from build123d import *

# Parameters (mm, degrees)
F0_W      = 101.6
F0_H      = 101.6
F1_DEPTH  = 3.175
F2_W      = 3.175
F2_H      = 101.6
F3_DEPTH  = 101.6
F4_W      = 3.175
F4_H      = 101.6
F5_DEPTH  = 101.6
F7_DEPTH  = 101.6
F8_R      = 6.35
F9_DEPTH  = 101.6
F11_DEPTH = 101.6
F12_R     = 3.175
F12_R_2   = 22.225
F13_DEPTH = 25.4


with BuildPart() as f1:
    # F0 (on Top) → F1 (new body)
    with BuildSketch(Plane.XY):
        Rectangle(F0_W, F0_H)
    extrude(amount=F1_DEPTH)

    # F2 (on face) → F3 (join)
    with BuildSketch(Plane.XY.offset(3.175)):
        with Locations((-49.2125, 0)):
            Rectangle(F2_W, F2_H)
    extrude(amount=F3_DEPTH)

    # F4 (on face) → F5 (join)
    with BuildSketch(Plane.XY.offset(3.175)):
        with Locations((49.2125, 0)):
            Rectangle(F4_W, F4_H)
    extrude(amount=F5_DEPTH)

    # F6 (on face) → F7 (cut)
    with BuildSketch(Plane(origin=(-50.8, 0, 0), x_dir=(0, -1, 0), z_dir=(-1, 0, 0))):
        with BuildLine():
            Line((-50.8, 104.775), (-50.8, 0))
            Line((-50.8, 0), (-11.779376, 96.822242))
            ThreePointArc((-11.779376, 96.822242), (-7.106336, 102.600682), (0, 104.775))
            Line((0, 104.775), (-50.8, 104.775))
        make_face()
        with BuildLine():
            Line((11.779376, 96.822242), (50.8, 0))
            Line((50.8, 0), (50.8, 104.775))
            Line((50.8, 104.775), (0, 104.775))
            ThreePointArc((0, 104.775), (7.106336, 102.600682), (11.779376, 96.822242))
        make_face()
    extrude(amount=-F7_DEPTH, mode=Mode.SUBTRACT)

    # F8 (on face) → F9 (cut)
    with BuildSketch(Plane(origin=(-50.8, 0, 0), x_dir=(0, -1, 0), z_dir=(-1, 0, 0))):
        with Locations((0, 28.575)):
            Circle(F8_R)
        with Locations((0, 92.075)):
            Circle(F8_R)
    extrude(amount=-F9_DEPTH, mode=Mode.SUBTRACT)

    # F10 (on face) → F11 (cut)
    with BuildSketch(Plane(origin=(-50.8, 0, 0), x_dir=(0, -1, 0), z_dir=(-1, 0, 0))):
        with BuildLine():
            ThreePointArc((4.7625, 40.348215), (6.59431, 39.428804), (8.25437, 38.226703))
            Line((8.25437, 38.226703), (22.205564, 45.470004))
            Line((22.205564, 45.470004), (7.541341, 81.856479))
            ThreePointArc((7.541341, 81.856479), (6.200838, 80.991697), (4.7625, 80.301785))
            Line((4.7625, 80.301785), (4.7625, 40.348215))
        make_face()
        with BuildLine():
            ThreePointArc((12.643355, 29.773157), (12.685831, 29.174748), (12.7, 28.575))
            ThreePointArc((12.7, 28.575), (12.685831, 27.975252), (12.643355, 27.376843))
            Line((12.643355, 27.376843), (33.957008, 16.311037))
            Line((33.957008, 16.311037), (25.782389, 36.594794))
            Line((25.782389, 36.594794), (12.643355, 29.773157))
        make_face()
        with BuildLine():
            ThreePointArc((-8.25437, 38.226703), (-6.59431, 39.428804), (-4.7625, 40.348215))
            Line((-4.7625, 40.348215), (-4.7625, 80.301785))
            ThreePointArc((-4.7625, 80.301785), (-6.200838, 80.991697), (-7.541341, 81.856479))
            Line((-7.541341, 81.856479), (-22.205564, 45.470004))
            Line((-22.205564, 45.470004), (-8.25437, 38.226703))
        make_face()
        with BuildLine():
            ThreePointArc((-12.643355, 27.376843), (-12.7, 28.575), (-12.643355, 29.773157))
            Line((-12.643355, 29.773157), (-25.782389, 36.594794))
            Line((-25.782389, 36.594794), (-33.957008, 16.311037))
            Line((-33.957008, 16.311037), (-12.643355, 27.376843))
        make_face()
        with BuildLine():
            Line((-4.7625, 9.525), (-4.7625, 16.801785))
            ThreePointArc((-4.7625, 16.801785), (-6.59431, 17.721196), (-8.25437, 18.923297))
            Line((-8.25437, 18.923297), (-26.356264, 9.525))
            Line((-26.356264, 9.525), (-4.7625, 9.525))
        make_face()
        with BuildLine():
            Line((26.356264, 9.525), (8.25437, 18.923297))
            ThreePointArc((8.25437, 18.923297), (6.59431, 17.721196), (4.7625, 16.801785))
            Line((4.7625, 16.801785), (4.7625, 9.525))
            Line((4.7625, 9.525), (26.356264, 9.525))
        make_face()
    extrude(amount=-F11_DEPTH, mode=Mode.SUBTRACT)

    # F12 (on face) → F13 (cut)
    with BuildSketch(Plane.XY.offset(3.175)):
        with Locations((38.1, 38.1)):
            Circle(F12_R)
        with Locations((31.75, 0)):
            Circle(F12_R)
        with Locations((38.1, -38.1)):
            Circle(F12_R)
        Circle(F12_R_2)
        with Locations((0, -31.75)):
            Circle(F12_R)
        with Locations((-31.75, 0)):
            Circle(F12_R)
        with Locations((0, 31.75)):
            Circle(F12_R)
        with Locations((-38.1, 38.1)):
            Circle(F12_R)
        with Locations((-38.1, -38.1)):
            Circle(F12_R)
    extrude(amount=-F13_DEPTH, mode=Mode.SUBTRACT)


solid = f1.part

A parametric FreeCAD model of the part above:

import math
import FreeCAD as App
import Part
import Sketcher

V = App.Vector
Q = App.Units.Quantity

doc = App.newDocument("Part")
body = doc.addObject("PartDesign::Body", "Body")

# Sketch on XY plane
sketch1 = body.newObject("Sketcher::SketchObject", "Sketch")
sketch1.AttachmentSupport = (doc.getObject("XY_Plane"), [""])
sketch1.MapMode = "FlatFace"
sketch1.addGeometry(Part.LineSegment(V(-50.8, 50.8, 0), V(-50.8, -50.8, 0)), False)
sketch1.addGeometry(Part.LineSegment(V(-50.8, -50.8, 0), V(50.8, -50.8, 0)), False)
sketch1.addGeometry(Part.LineSegment(V(50.8, -50.8, 0), V(50.8, 50.8, 0)), False)
sketch1.addGeometry(Part.LineSegment(V(50.8, 50.8, 0), V(-50.8, 50.8, 0)), False)
sketch1.addConstraint(Sketcher.Constraint("Coincident", 0, 2, 1, 1))
sketch1.addConstraint(Sketcher.Constraint("Coincident", 1, 2, 2, 1))
sketch1.addConstraint(Sketcher.Constraint("Coincident", 2, 2, 3, 1))
sketch1.addConstraint(Sketcher.Constraint("Coincident", 3, 2, 0, 1))
sketch1.addConstraint(Sketcher.Constraint("Vertical", 0))
sketch1.addConstraint(Sketcher.Constraint("Horizontal", 1))
sketch1.addConstraint(Sketcher.Constraint("Vertical", 2))
sketch1.addConstraint(Sketcher.Constraint("Horizontal", 3))
sketch1.addConstraint(Sketcher.Constraint("Symmetric", 0, 2, 2, 2, -1, 1))
sketch1.addConstraint(Sketcher.Constraint("Equal", 3, 0))
sketch1.addConstraint(Sketcher.Constraint("DistanceX", 1, 1, 1, 2, Q("4 in")))
pad1 = body.newObject("PartDesign::Pad", "Pad")
pad1.Profile = sketch1
pad1.Length = Q("0.125 in")

# Sketch on XY plane
sketch2 = body.newObject("Sketcher::SketchObject", "Sketch001")
sketch2.AttachmentSupport = (doc.getObject("XY_Plane"), [""])
sketch2.MapMode = "FlatFace"
sketch2.AttachmentOffset = App.Placement(V(0, 0, 0.125 * 25.4), App.Rotation())
sketch2.addGeometry(Part.LineSegment(V(-50.8, 50.8, 0), V(-50.8, -50.8, 0)), False)
sketch2.addGeometry(Part.LineSegment(V(-50.8, -50.8, 0), V(-47.625, -50.8, 0)), False)
sketch2.addGeometry(Part.LineSegment(V(-47.625, -50.8, 0), V(-47.625, 50.8, 0)), False)
sketch2.addGeometry(Part.LineSegment(V(-47.625, 50.8, 0), V(-50.8, 50.8, 0)), False)
sketch2.addConstraint(Sketcher.Constraint("Coincident", 0, 2, 1, 1))
sketch2.addConstraint(Sketcher.Constraint("Coincident", 1, 2, 2, 1))
sketch2.addConstraint(Sketcher.Constraint("Coincident", 2, 2, 3, 1))
sketch2.addConstraint(Sketcher.Constraint("Coincident", 3, 2, 0, 1))
sketch2.addConstraint(Sketcher.Constraint("Vertical", 0))
sketch2.addConstraint(Sketcher.Constraint("Horizontal", 1))
sketch2.addConstraint(Sketcher.Constraint("Vertical", 2))
sketch2.addConstraint(Sketcher.Constraint("Horizontal", 3))
sketch2.addConstraint(Sketcher.Constraint("DistanceY", 0, 2, 0, 1, Q("4 in")))
sketch2.addConstraint(Sketcher.Constraint("DistanceX", 0, 2, -1, 1, Q("2 in")))
sketch2.addConstraint(Sketcher.Constraint("DistanceY", 0, 2, -1, 1, Q("2 in")))
sketch2.addConstraint(Sketcher.Constraint("DistanceX", 1, 1, 1, 2, Q("0.125 in")))
pad2 = body.newObject("PartDesign::Pad", "Pad001")
pad2.Profile = sketch2
pad2.Length = Q("4 in")

# Sketch on XY plane
sketch3 = body.newObject("Sketcher::SketchObject", "Sketch002")
sketch3.AttachmentSupport = (doc.getObject("XY_Plane"), [""])
sketch3.MapMode = "FlatFace"
sketch3.AttachmentOffset = App.Placement(V(0, 0, 0.125 * 25.4), App.Rotation())
sketch3.addGeometry(Part.LineSegment(V(47.625, 50.8, 0), V(47.625, -50.8, 0)), False)
sketch3.addGeometry(Part.LineSegment(V(47.625, -50.8, 0), V(50.8, -50.8, 0)), False)
sketch3.addGeometry(Part.LineSegment(V(50.8, -50.8, 0), V(50.8, 50.8, 0)), False)
sketch3.addGeometry(Part.LineSegment(V(50.8, 50.8, 0), V(47.625, 50.8, 0)), False)
sketch3.addConstraint(Sketcher.Constraint("Coincident", 0, 2, 1, 1))
sketch3.addConstraint(Sketcher.Constraint("Coincident", 1, 2, 2, 1))
sketch3.addConstraint(Sketcher.Constraint("Coincident", 2, 2, 3, 1))
sketch3.addConstraint(Sketcher.Constraint("Coincident", 3, 2, 0, 1))
sketch3.addConstraint(Sketcher.Constraint("Vertical", 0))
sketch3.addConstraint(Sketcher.Constraint("Horizontal", 1))
sketch3.addConstraint(Sketcher.Constraint("Vertical", 2))
sketch3.addConstraint(Sketcher.Constraint("Horizontal", 3))
sketch3.addConstraint(Sketcher.Constraint("DistanceY", 0, 2, 0, 1, Q("4 in")))
sketch3.addConstraint(Sketcher.Constraint("DistanceY", 0, 2, -1, 1, Q("2 in")))
sketch3.addConstraint(Sketcher.Constraint("DistanceX", -1, 1, 1, 2, Q("2 in")))
sketch3.addConstraint(Sketcher.Constraint("DistanceX", 1, 1, 1, 2, Q("0.125 in")))
pad3 = body.newObject("PartDesign::Pad", "Pad002")
pad3.Profile = sketch3
pad3.Length = Q("4 in")

# Sketch on YZ plane
sketch4 = body.newObject("Sketcher::SketchObject", "Sketch003")
sketch4.AttachmentSupport = (doc.getObject("YZ_Plane"), [""])
sketch4.MapMode = "FlatFace"
sketch4.AttachmentOffset = App.Placement(V(0, 0, -2 * 25.4), App.Rotation())
sketch4.addGeometry(Part.LineSegment(V(50.8, 104.775, 0), V(50.8, 0, 0)), False)
sketch4.addGeometry(Part.LineSegment(V(50.8, 0, 0), V(11.779376, 96.822242, 0)), False)
sketch4.addGeometry(Part.ArcOfCircle(Part.Circle(V(-0.000001, 92.074998, 0), V(0, 0, 1), 12.700002), math.radians(21.950083), math.radians(89.999995)), False)
sketch4.addGeometry(Part.LineSegment(V(0, 104.775, 0), V(50.8, 104.775, 0)), False)
sketch4.addGeometry(Part.LineSegment(V(-11.779376, 96.822242, 0), V(-50.8, 0, 0)), False)
sketch4.addGeometry(Part.LineSegment(V(-50.8, 0, 0), V(-50.8, 104.775, 0)), False)
sketch4.addGeometry(Part.LineSegment(V(-50.8, 104.775, 0), V(0, 104.775, 0)), False)
sketch4.addGeometry(Part.ArcOfCircle(Part.Circle(V(0.000001, 92.074998, 0), V(0, 0, 1), 12.700002), math.radians(90.000005), math.radians(158.049917)), False)
sketch4.addConstraint(Sketcher.Constraint("Coincident", 0, 2, 1, 1))
sketch4.addConstraint(Sketcher.Constraint("Tangent", 1, 2, 2, 1))
sketch4.addConstraint(Sketcher.Constraint("Tangent", 2, 2, 3, 1))
sketch4.addConstraint(Sketcher.Constraint("Coincident", 3, 2, 0, 1))
sketch4.addConstraint(Sketcher.Constraint("Coincident", 4, 2, 5, 1))
sketch4.addConstraint(Sketcher.Constraint("Coincident", 5, 2, 6, 1))
sketch4.addConstraint(Sketcher.Constraint("Tangent", 6, 2, 7, 1))
sketch4.addConstraint(Sketcher.Constraint("Tangent", 7, 2, 4, 1))
sketch4.addConstraint(Sketcher.Constraint("Vertical", 0))
sketch4.addConstraint(Sketcher.Constraint("Horizontal", 3))
sketch4.addConstraint(Sketcher.Constraint("Vertical", 5))
sketch4.addConstraint(Sketcher.Constraint("Horizontal", 6))
sketch4.addConstraint(Sketcher.Constraint("Coincident", 7, 3, 2, 3))
sketch4.addConstraint(Sketcher.Constraint("Equal", 2, 7))
sketch4.addConstraint(Sketcher.Constraint("Symmetric", 0, 2, 4, 2, -1, 1))
sketch4.addConstraint(Sketcher.Constraint("Symmetric", 1, 2, 7, 2, -2))
sketch4.addConstraint(Sketcher.Constraint("Radius", 2, Q("0.5000001 in")))
sketch4.addConstraint(Sketcher.Constraint("DistanceX", 3, 1, 3, 2, Q("2 in")))
sketch4.addConstraint(Sketcher.Constraint("DistanceY", 0, 2, 0, 1, Q("4.125 in")))
pocket1 = body.newObject("PartDesign::Pocket", "Pocket")
pocket1.Profile = sketch4
pocket1.Length = Q("4 in")
pocket1.Reversed = True

# Sketch on YZ plane
sketch5 = body.newObject("Sketcher::SketchObject", "Sketch004")
sketch5.AttachmentSupport = (doc.getObject("YZ_Plane"), [""])
sketch5.MapMode = "FlatFace"
sketch5.AttachmentOffset = App.Placement(V(0, 0, -2 * 25.4), App.Rotation())
sketch5.addGeometry(Part.Circle(V(0, 28.575, 0), V(0, 0, 1), 6.35), False)
sketch5.addGeometry(Part.Circle(V(0, 92.075, 0), V(0, 0, 1), 6.35), False)
sketch5.addConstraint(Sketcher.Constraint("Equal", 0, 1))
sketch5.addConstraint(Sketcher.Constraint("PointOnObject", 0, 3, -2))
sketch5.addConstraint(Sketcher.Constraint("PointOnObject", 1, 3, -2))
sketch5.addConstraint(Sketcher.Constraint("Diameter", 0, Q("0.5 in")))
sketch5.addConstraint(Sketcher.Constraint("DistanceY", 0, 3, 1, 3, Q("2.5 in")))
sketch5.addConstraint(Sketcher.Constraint("DistanceY", -1, 1, 0, 3, Q("1.125 in")))
pocket2 = body.newObject("PartDesign::Pocket", "Pocket001")
pocket2.Profile = sketch5
pocket2.Length = Q("4 in")
pocket2.Reversed = True

# Sketch on YZ plane
sketch6 = body.newObject("Sketcher::SketchObject", "Sketch005")
sketch6.AttachmentSupport = (doc.getObject("YZ_Plane"), [""])
sketch6.MapMode = "FlatFace"
sketch6.AttachmentOffset = App.Placement(V(0, 0, -2 * 25.4), App.Rotation())
sketch6.addGeometry(Part.ArcOfCircle(Part.Circle(V(0.000017, 28.574973, 0), V(0, 0, 1), 12.700032), math.radians(112.024338), math.radians(130.537841)), False)
sketch6.addGeometry(Part.LineSegment(V(-8.25437, 38.226703, 0), V(-22.205564, 45.470004, 0)), False)
sketch6.addGeometry(Part.LineSegment(V(-22.205564, 45.470004, 0), V(-7.541341, 81.856479, 0)), False)
sketch6.addGeometry(Part.ArcOfCircle(Part.Circle(V(-0.000001, 92.074997, 0), V(0, 0, 1), 12.699996), math.radians(-126.427592), math.radians(-112.024313)), False)
sketch6.addGeometry(Part.LineSegment(V(-4.7625, 80.301785, 0), V(-4.7625, 40.348215, 0)), False)
sketch6.addGeometry(Part.ArcOfCircle(Part.Circle(V(-0.000102, 28.575007, 0), V(0, 0, 1), 12.699898), math.radians(174.586479), math.radians(180.000033)), False)
sketch6.addGeometry(Part.ArcOfCircle(Part.Circle(V(-0.000102, 28.574993, 0), V(0, 0, 1), 12.699898), math.radians(179.999967), math.radians(185.413521)), False)
sketch6.addGeometry(Part.LineSegment(V(-12.643355, 27.376843, 0), V(-33.957008, 16.311037, 0)), False)
sketch6.addGeometry(Part.LineSegment(V(-33.957008, 16.311037, 0), V(-25.782389, 36.594794, 0)), False)
sketch6.addGeometry(Part.LineSegment(V(-25.782389, 36.594794, 0), V(-12.643355, 29.773157, 0)), False)
sketch6.addGeometry(Part.ArcOfCircle(Part.Circle(V(-0.000017, 28.574973, 0), V(0, 0, 1), 12.700032), math.radians(49.462159), math.radians(67.975662)), False)
sketch6.addGeometry(Part.LineSegment(V(4.7625, 40.348215, 0), V(4.7625, 80.301785, 0)), False)
sketch6.addGeometry(Part.ArcOfCircle(Part.Circle(V(0.000001, 92.074997, 0), V(0, 0, 1), 12.699996), math.radians(-67.975687), math.radians(-53.572408)), False)
sketch6.addGeometry(Part.LineSegment(V(7.541341, 81.856479, 0), V(22.205564, 45.470004, 0)), False)
sketch6.addGeometry(Part.LineSegment(V(22.205564, 45.470004, 0), V(8.25437, 38.226703, 0)), False)
sketch6.addGeometry(Part.ArcOfCircle(Part.Circle(V(-0.000052, 28.575, 0), V(0, 0, 1), 12.700052), math.radians(-5.413489), math.radians(5.413489)), False)
sketch6.addGeometry(Part.LineSegment(V(12.643355, 29.773157, 0), V(25.782389, 36.594794, 0)), False)
sketch6.addGeometry(Part.LineSegment(V(25.782389, 36.594794, 0), V(33.957008, 16.311037, 0)), False)
sketch6.addGeometry(Part.LineSegment(V(33.957008, 16.311037, 0), V(12.643355, 27.376843, 0)), False)
sketch6.addGeometry(Part.LineSegment(V(4.7625, 9.525, 0), V(4.7625, 16.801785, 0)), False)
sketch6.addGeometry(Part.ArcOfCircle(Part.Circle(V(-0.000017, 28.575027, 0), V(0, 0, 1), 12.700032), math.radians(-67.975662), math.radians(-49.462159)), False)
sketch6.addGeometry(Part.LineSegment(V(8.25437, 18.923297, 0), V(26.356264, 9.525, 0)), False)
sketch6.addGeometry(Part.LineSegment(V(26.356264, 9.525, 0), V(4.7625, 9.525, 0)), False)
sketch6.addGeometry(Part.LineSegment(V(-26.356264, 9.525, 0), V(-8.25437, 18.923297, 0)), False)
sketch6.addGeometry(Part.ArcOfCircle(Part.Circle(V(0.000017, 28.575027, 0), V(0, 0, 1), 12.700032), math.radians(-130.537841), math.radians(-112.024338)), False)
sketch6.addGeometry(Part.LineSegment(V(-4.7625, 16.801785, 0), V(-4.7625, 9.525, 0)), False)
sketch6.addGeometry(Part.LineSegment(V(-4.7625, 9.525, 0), V(-26.356264, 9.525, 0)), False)
sketch6.addConstraint(Sketcher.Constraint("Coincident", 0, 2, 1, 1))
sketch6.addConstraint(Sketcher.Constraint("Coincident", 1, 2, 2, 1))
sketch6.addConstraint(Sketcher.Constraint("Coincident", 2, 2, 3, 1))
sketch6.addConstraint(Sketcher.Constraint("Coincident", 3, 2, 4, 1))
sketch6.addConstraint(Sketcher.Constraint("Coincident", 4, 2, 0, 1))
sketch6.addConstraint(Sketcher.Constraint("Tangent", 5, 2, 6, 1))
sketch6.addConstraint(Sketcher.Constraint("Coincident", 6, 2, 7, 1))
sketch6.addConstraint(Sketcher.Constraint("Coincident", 7, 2, 8, 1))
sketch6.addConstraint(Sketcher.Constraint("Coincident", 8, 2, 9, 1))
sketch6.addConstraint(Sketcher.Constraint("Coincident", 9, 2, 5, 1))
sketch6.addConstraint(Sketcher.Constraint("Coincident", 10, 2, 11, 1))
sketch6.addConstraint(Sketcher.Constraint("Coincident", 11, 2, 12, 1))
sketch6.addConstraint(Sketcher.Constraint("Coincident", 12, 2, 13, 1))
sketch6.addConstraint(Sketcher.Constraint("Coincident", 13, 2, 14, 1))
sketch6.addConstraint(Sketcher.Constraint("Coincident", 14, 2, 10, 1))
sketch6.addConstraint(Sketcher.Constraint("Coincident", 15, 2, 16, 1))
sketch6.addConstraint(Sketcher.Constraint("Coincident", 16, 2, 17, 1))
sketch6.addConstraint(Sketcher.Constraint("Coincident", 17, 2, 18, 1))
sketch6.addConstraint(Sketcher.Constraint("Coincident", 18, 2, 15, 1))
sketch6.addConstraint(Sketcher.Constraint("Coincident", 19, 2, 20, 1))
sketch6.addConstraint(Sketcher.Constraint("Coincident", 20, 2, 21, 1))
sketch6.addConstraint(Sketcher.Constraint("Coincident", 21, 2, 22, 1))
sketch6.addConstraint(Sketcher.Constraint("Coincident", 22, 2, 19, 1))
sketch6.addConstraint(Sketcher.Constraint("Coincident", 23, 2, 24, 1))
sketch6.addConstraint(Sketcher.Constraint("Coincident", 24, 2, 25, 1))
sketch6.addConstraint(Sketcher.Constraint("Coincident", 25, 2, 26, 1))
sketch6.addConstraint(Sketcher.Constraint("Coincident", 26, 2, 23, 1))
sketch6.addConstraint(Sketcher.Constraint("Vertical", 4))
sketch6.addConstraint(Sketcher.Constraint("Vertical", 11))
sketch6.addConstraint(Sketcher.Constraint("Vertical", 19))
sketch6.addConstraint(Sketcher.Constraint("Horizontal", 22))
sketch6.addConstraint(Sketcher.Constraint("Vertical", 25))
sketch6.addConstraint(Sketcher.Constraint("Horizontal", 26))
sketch6.addConstraint(Sketcher.Constraint("Coincident", 12, 3, 3, 3))
sketch6.addConstraint(Sketcher.Constraint("Equal", 5, 6))
sketch6.addConstraint(Sketcher.Constraint("Equal", 0, 10))
sketch6.addConstraint(Sketcher.Constraint("Equal", 3, 12))
sketch6.addConstraint(Sketcher.Constraint("Equal", 10, 20))
sketch6.addConstraint(Sketcher.Constraint("Equal", 20, 24))
sketch6.addConstraint(Sketcher.Constraint("Symmetric", 0, 3, 10, 3, -2))
sketch6.addConstraint(Sketcher.Constraint("Symmetric", 20, 3, 24, 3, -2))
sketch6.addConstraint(Sketcher.Constraint("Symmetric", 3, 2, 11, 2, -2))
sketch6.addConstraint(Sketcher.Constraint("Symmetric", 1, 2, 13, 2, -2))
sketch6.addConstraint(Sketcher.Constraint("Symmetric", 9, 2, 15, 2, -2))
sketch6.addConstraint(Sketcher.Constraint("Symmetric", 8, 2, 16, 2, -2))
sketch6.addConstraint(Sketcher.Constraint("Symmetric", 7, 2, 17, 2, -2))
sketch6.addConstraint(Sketcher.Constraint("Symmetric", 6, 2, 18, 2, -2))
sketch6.addConstraint(Sketcher.Constraint("Symmetric", 22, 2, 25, 2, -2))
sketch6.addConstraint(Sketcher.Constraint("Parallel", 2, 8))
sketch6.addConstraint(Sketcher.Constraint("Parallel", 1, 9))
sketch6.addConstraint(Sketcher.Constraint("Parallel", 7, 14))
sketch6.addConstraint(Sketcher.Constraint("Parallel", 14, 16))
sketch6.addConstraint(Sketcher.Constraint("Parallel", 13, 17))
sketch6.addConstraint(Sketcher.Constraint("Parallel", 18, 21))
sketch6.addConstraint(Sketcher.Constraint("Parallel", 16, 23))
sketch6.addConstraint(Sketcher.Constraint("Horizontal", 15, 3, 5, 2))
sketch6.addConstraint(Sketcher.Constraint("Horizontal", 20, 2, 23, 2))
sketch6.addConstraint(Sketcher.Constraint("Vertical", 10, 3, 20, 3))
sketch6.addConstraint(Sketcher.Constraint("Vertical", 6, 2, 9, 2))
sketch6.addConstraint(Sketcher.Constraint("Vertical", 11, 2, 19, 2))
sketch6.addConstraint(Sketcher.Constraint("Vertical", 14, 2, 20, 2))
sketch6.addConstraint(Sketcher.Constraint("Radius", 3, Q("0.4999999 in")))
sketch6.addConstraint(Sketcher.Constraint("DistanceX", 5, 2, -1, 1, Q("0.5 in")))
sketch6.addConstraint(Sketcher.Constraint("DistanceY", 6, 3, 3, 3, Q("2.5000002 in")))
sketch6.addConstraint(Sketcher.Constraint("DistanceY", -1, 1, 3, 3, Q("3.6249999 in")))
sketch6.addConstraint(Sketcher.Constraint("DistanceX", 3, 2, -1, 1, Q("0.1875 in")))
sketch6.addConstraint(Sketcher.Constraint("DistanceY", -1, 1, 21, 2, Q("0.375 in")))
sketch6.addConstraint(Sketcher.Constraint("Radius", 0, 12.700032))
sketch6.addConstraint(Sketcher.Constraint("Radius", 15, 12.700052))
sketch6.addConstraint(Sketcher.Constraint("Radius", 5, 12.699898))
sketch6.addConstraint(Sketcher.Constraint("DistanceY", 4, 2, 4, 1, 39.95357))
sketch6.addConstraint(Sketcher.Constraint("DistanceY", 0, 2, 1, 2, 7.243301))
sketch6.addConstraint(Sketcher.Constraint("Distance", 2, 39.230282))
sketch6.addConstraint(Sketcher.Constraint("Distance", 21, 20.396239))
sketch6.addConstraint(Sketcher.Constraint("DistanceX", 22, 2, 22, 1, 21.593764))
sketch6.addConstraint(Sketcher.Constraint("DistanceY", 19, 1, 19, 2, 7.276785))
sketch6.addConstraint(Sketcher.Constraint("DistanceX", 0, 2, -1, 1, 8.25437))
sketch6.addConstraint(Sketcher.Constraint("DistanceX", 7, 2, -1, 1, 33.957008))
sketch6.addConstraint(Sketcher.Constraint("DistanceX", 8, 2, -1, 1, 25.782389))
pocket3 = body.newObject("PartDesign::Pocket", "Pocket002")
pocket3.Profile = sketch6
pocket3.Length = Q("4 in")
pocket3.Reversed = True

# Sketch on XY plane
sketch7 = body.newObject("Sketcher::SketchObject", "Sketch006")
sketch7.AttachmentSupport = (doc.getObject("XY_Plane"), [""])
sketch7.MapMode = "FlatFace"
sketch7.AttachmentOffset = App.Placement(V(0, 0, 0.125 * 25.4), App.Rotation())
sketch7.addGeometry(Part.Circle(V(38.1, 38.1, 0), V(0, 0, 1), 3.175), False)
sketch7.addGeometry(Part.Circle(V(31.75, 0, 0), V(0, 0, 1), 3.175), False)
sketch7.addGeometry(Part.Circle(V(38.1, -38.1, 0), V(0, 0, 1), 3.175), False)
sketch7.addGeometry(Part.Circle(V(0, 0, 0), V(0, 0, 1), 22.225), False)
sketch7.addGeometry(Part.Circle(V(0, -31.75, 0), V(0, 0, 1), 3.175), False)
sketch7.addGeometry(Part.Circle(V(-31.75, 0, 0), V(0, 0, 1), 3.175), False)
sketch7.addGeometry(Part.Circle(V(0, 31.75, 0), V(0, 0, 1), 3.175), False)
sketch7.addGeometry(Part.Circle(V(-38.1, 38.1, 0), V(0, 0, 1), 3.175), False)
sketch7.addGeometry(Part.Circle(V(-38.1, -38.1, 0), V(0, 0, 1), 3.175), False)
sketch7.addConstraint(Sketcher.Constraint("Coincident", 3, 3, -1, 1))
sketch7.addConstraint(Sketcher.Constraint("Equal", 0, 1))
sketch7.addConstraint(Sketcher.Constraint("Equal", 1, 2))
sketch7.addConstraint(Sketcher.Constraint("Equal", 2, 4))
sketch7.addConstraint(Sketcher.Constraint("Equal", 4, 5))
sketch7.addConstraint(Sketcher.Constraint("Equal", 5, 6))
sketch7.addConstraint(Sketcher.Constraint("Equal", 6, 7))
sketch7.addConstraint(Sketcher.Constraint("Equal", 7, 8))
sketch7.addConstraint(Sketcher.Constraint("Symmetric", 1, 3, 5, 3, -1, 1))
sketch7.addConstraint(Sketcher.Constraint("Symmetric", 4, 3, 6, 3, -1, 1))
sketch7.addConstraint(Sketcher.Constraint("Symmetric", 2, 3, 7, 3, -1, 1))
sketch7.addConstraint(Sketcher.Constraint("Symmetric", 0, 3, 8, 3, -1, 1))
sketch7.addConstraint(Sketcher.Constraint("Symmetric", 0, 3, 7, 3, -2))
sketch7.addConstraint(Sketcher.Constraint("PointOnObject", 1, 3, -1))
sketch7.addConstraint(Sketcher.Constraint("PointOnObject", 4, 3, -2))
sketch7.addConstraint(Sketcher.Constraint("Diameter", 0, Q("0.25 in")))
sketch7.addConstraint(Sketcher.Constraint("Diameter", 3, Q("1.75 in")))
sketch7.addConstraint(Sketcher.Constraint("DistanceY", 2, 3, 0, 3, Q("3 in")))
sketch7.addConstraint(Sketcher.Constraint("DistanceX", 7, 3, 0, 3, Q("3 in")))
sketch7.addConstraint(Sketcher.Constraint("DistanceX", 5, 3, 1, 3, Q("2.5 in")))
sketch7.addConstraint(Sketcher.Constraint("DistanceY", 4, 3, 6, 3, Q("2.5 in")))
pocket4 = body.newObject("PartDesign::Pocket", "Pocket003")
pocket4.Profile = sketch7
pocket4.Length = Q("1 in")

doc.recompute()
